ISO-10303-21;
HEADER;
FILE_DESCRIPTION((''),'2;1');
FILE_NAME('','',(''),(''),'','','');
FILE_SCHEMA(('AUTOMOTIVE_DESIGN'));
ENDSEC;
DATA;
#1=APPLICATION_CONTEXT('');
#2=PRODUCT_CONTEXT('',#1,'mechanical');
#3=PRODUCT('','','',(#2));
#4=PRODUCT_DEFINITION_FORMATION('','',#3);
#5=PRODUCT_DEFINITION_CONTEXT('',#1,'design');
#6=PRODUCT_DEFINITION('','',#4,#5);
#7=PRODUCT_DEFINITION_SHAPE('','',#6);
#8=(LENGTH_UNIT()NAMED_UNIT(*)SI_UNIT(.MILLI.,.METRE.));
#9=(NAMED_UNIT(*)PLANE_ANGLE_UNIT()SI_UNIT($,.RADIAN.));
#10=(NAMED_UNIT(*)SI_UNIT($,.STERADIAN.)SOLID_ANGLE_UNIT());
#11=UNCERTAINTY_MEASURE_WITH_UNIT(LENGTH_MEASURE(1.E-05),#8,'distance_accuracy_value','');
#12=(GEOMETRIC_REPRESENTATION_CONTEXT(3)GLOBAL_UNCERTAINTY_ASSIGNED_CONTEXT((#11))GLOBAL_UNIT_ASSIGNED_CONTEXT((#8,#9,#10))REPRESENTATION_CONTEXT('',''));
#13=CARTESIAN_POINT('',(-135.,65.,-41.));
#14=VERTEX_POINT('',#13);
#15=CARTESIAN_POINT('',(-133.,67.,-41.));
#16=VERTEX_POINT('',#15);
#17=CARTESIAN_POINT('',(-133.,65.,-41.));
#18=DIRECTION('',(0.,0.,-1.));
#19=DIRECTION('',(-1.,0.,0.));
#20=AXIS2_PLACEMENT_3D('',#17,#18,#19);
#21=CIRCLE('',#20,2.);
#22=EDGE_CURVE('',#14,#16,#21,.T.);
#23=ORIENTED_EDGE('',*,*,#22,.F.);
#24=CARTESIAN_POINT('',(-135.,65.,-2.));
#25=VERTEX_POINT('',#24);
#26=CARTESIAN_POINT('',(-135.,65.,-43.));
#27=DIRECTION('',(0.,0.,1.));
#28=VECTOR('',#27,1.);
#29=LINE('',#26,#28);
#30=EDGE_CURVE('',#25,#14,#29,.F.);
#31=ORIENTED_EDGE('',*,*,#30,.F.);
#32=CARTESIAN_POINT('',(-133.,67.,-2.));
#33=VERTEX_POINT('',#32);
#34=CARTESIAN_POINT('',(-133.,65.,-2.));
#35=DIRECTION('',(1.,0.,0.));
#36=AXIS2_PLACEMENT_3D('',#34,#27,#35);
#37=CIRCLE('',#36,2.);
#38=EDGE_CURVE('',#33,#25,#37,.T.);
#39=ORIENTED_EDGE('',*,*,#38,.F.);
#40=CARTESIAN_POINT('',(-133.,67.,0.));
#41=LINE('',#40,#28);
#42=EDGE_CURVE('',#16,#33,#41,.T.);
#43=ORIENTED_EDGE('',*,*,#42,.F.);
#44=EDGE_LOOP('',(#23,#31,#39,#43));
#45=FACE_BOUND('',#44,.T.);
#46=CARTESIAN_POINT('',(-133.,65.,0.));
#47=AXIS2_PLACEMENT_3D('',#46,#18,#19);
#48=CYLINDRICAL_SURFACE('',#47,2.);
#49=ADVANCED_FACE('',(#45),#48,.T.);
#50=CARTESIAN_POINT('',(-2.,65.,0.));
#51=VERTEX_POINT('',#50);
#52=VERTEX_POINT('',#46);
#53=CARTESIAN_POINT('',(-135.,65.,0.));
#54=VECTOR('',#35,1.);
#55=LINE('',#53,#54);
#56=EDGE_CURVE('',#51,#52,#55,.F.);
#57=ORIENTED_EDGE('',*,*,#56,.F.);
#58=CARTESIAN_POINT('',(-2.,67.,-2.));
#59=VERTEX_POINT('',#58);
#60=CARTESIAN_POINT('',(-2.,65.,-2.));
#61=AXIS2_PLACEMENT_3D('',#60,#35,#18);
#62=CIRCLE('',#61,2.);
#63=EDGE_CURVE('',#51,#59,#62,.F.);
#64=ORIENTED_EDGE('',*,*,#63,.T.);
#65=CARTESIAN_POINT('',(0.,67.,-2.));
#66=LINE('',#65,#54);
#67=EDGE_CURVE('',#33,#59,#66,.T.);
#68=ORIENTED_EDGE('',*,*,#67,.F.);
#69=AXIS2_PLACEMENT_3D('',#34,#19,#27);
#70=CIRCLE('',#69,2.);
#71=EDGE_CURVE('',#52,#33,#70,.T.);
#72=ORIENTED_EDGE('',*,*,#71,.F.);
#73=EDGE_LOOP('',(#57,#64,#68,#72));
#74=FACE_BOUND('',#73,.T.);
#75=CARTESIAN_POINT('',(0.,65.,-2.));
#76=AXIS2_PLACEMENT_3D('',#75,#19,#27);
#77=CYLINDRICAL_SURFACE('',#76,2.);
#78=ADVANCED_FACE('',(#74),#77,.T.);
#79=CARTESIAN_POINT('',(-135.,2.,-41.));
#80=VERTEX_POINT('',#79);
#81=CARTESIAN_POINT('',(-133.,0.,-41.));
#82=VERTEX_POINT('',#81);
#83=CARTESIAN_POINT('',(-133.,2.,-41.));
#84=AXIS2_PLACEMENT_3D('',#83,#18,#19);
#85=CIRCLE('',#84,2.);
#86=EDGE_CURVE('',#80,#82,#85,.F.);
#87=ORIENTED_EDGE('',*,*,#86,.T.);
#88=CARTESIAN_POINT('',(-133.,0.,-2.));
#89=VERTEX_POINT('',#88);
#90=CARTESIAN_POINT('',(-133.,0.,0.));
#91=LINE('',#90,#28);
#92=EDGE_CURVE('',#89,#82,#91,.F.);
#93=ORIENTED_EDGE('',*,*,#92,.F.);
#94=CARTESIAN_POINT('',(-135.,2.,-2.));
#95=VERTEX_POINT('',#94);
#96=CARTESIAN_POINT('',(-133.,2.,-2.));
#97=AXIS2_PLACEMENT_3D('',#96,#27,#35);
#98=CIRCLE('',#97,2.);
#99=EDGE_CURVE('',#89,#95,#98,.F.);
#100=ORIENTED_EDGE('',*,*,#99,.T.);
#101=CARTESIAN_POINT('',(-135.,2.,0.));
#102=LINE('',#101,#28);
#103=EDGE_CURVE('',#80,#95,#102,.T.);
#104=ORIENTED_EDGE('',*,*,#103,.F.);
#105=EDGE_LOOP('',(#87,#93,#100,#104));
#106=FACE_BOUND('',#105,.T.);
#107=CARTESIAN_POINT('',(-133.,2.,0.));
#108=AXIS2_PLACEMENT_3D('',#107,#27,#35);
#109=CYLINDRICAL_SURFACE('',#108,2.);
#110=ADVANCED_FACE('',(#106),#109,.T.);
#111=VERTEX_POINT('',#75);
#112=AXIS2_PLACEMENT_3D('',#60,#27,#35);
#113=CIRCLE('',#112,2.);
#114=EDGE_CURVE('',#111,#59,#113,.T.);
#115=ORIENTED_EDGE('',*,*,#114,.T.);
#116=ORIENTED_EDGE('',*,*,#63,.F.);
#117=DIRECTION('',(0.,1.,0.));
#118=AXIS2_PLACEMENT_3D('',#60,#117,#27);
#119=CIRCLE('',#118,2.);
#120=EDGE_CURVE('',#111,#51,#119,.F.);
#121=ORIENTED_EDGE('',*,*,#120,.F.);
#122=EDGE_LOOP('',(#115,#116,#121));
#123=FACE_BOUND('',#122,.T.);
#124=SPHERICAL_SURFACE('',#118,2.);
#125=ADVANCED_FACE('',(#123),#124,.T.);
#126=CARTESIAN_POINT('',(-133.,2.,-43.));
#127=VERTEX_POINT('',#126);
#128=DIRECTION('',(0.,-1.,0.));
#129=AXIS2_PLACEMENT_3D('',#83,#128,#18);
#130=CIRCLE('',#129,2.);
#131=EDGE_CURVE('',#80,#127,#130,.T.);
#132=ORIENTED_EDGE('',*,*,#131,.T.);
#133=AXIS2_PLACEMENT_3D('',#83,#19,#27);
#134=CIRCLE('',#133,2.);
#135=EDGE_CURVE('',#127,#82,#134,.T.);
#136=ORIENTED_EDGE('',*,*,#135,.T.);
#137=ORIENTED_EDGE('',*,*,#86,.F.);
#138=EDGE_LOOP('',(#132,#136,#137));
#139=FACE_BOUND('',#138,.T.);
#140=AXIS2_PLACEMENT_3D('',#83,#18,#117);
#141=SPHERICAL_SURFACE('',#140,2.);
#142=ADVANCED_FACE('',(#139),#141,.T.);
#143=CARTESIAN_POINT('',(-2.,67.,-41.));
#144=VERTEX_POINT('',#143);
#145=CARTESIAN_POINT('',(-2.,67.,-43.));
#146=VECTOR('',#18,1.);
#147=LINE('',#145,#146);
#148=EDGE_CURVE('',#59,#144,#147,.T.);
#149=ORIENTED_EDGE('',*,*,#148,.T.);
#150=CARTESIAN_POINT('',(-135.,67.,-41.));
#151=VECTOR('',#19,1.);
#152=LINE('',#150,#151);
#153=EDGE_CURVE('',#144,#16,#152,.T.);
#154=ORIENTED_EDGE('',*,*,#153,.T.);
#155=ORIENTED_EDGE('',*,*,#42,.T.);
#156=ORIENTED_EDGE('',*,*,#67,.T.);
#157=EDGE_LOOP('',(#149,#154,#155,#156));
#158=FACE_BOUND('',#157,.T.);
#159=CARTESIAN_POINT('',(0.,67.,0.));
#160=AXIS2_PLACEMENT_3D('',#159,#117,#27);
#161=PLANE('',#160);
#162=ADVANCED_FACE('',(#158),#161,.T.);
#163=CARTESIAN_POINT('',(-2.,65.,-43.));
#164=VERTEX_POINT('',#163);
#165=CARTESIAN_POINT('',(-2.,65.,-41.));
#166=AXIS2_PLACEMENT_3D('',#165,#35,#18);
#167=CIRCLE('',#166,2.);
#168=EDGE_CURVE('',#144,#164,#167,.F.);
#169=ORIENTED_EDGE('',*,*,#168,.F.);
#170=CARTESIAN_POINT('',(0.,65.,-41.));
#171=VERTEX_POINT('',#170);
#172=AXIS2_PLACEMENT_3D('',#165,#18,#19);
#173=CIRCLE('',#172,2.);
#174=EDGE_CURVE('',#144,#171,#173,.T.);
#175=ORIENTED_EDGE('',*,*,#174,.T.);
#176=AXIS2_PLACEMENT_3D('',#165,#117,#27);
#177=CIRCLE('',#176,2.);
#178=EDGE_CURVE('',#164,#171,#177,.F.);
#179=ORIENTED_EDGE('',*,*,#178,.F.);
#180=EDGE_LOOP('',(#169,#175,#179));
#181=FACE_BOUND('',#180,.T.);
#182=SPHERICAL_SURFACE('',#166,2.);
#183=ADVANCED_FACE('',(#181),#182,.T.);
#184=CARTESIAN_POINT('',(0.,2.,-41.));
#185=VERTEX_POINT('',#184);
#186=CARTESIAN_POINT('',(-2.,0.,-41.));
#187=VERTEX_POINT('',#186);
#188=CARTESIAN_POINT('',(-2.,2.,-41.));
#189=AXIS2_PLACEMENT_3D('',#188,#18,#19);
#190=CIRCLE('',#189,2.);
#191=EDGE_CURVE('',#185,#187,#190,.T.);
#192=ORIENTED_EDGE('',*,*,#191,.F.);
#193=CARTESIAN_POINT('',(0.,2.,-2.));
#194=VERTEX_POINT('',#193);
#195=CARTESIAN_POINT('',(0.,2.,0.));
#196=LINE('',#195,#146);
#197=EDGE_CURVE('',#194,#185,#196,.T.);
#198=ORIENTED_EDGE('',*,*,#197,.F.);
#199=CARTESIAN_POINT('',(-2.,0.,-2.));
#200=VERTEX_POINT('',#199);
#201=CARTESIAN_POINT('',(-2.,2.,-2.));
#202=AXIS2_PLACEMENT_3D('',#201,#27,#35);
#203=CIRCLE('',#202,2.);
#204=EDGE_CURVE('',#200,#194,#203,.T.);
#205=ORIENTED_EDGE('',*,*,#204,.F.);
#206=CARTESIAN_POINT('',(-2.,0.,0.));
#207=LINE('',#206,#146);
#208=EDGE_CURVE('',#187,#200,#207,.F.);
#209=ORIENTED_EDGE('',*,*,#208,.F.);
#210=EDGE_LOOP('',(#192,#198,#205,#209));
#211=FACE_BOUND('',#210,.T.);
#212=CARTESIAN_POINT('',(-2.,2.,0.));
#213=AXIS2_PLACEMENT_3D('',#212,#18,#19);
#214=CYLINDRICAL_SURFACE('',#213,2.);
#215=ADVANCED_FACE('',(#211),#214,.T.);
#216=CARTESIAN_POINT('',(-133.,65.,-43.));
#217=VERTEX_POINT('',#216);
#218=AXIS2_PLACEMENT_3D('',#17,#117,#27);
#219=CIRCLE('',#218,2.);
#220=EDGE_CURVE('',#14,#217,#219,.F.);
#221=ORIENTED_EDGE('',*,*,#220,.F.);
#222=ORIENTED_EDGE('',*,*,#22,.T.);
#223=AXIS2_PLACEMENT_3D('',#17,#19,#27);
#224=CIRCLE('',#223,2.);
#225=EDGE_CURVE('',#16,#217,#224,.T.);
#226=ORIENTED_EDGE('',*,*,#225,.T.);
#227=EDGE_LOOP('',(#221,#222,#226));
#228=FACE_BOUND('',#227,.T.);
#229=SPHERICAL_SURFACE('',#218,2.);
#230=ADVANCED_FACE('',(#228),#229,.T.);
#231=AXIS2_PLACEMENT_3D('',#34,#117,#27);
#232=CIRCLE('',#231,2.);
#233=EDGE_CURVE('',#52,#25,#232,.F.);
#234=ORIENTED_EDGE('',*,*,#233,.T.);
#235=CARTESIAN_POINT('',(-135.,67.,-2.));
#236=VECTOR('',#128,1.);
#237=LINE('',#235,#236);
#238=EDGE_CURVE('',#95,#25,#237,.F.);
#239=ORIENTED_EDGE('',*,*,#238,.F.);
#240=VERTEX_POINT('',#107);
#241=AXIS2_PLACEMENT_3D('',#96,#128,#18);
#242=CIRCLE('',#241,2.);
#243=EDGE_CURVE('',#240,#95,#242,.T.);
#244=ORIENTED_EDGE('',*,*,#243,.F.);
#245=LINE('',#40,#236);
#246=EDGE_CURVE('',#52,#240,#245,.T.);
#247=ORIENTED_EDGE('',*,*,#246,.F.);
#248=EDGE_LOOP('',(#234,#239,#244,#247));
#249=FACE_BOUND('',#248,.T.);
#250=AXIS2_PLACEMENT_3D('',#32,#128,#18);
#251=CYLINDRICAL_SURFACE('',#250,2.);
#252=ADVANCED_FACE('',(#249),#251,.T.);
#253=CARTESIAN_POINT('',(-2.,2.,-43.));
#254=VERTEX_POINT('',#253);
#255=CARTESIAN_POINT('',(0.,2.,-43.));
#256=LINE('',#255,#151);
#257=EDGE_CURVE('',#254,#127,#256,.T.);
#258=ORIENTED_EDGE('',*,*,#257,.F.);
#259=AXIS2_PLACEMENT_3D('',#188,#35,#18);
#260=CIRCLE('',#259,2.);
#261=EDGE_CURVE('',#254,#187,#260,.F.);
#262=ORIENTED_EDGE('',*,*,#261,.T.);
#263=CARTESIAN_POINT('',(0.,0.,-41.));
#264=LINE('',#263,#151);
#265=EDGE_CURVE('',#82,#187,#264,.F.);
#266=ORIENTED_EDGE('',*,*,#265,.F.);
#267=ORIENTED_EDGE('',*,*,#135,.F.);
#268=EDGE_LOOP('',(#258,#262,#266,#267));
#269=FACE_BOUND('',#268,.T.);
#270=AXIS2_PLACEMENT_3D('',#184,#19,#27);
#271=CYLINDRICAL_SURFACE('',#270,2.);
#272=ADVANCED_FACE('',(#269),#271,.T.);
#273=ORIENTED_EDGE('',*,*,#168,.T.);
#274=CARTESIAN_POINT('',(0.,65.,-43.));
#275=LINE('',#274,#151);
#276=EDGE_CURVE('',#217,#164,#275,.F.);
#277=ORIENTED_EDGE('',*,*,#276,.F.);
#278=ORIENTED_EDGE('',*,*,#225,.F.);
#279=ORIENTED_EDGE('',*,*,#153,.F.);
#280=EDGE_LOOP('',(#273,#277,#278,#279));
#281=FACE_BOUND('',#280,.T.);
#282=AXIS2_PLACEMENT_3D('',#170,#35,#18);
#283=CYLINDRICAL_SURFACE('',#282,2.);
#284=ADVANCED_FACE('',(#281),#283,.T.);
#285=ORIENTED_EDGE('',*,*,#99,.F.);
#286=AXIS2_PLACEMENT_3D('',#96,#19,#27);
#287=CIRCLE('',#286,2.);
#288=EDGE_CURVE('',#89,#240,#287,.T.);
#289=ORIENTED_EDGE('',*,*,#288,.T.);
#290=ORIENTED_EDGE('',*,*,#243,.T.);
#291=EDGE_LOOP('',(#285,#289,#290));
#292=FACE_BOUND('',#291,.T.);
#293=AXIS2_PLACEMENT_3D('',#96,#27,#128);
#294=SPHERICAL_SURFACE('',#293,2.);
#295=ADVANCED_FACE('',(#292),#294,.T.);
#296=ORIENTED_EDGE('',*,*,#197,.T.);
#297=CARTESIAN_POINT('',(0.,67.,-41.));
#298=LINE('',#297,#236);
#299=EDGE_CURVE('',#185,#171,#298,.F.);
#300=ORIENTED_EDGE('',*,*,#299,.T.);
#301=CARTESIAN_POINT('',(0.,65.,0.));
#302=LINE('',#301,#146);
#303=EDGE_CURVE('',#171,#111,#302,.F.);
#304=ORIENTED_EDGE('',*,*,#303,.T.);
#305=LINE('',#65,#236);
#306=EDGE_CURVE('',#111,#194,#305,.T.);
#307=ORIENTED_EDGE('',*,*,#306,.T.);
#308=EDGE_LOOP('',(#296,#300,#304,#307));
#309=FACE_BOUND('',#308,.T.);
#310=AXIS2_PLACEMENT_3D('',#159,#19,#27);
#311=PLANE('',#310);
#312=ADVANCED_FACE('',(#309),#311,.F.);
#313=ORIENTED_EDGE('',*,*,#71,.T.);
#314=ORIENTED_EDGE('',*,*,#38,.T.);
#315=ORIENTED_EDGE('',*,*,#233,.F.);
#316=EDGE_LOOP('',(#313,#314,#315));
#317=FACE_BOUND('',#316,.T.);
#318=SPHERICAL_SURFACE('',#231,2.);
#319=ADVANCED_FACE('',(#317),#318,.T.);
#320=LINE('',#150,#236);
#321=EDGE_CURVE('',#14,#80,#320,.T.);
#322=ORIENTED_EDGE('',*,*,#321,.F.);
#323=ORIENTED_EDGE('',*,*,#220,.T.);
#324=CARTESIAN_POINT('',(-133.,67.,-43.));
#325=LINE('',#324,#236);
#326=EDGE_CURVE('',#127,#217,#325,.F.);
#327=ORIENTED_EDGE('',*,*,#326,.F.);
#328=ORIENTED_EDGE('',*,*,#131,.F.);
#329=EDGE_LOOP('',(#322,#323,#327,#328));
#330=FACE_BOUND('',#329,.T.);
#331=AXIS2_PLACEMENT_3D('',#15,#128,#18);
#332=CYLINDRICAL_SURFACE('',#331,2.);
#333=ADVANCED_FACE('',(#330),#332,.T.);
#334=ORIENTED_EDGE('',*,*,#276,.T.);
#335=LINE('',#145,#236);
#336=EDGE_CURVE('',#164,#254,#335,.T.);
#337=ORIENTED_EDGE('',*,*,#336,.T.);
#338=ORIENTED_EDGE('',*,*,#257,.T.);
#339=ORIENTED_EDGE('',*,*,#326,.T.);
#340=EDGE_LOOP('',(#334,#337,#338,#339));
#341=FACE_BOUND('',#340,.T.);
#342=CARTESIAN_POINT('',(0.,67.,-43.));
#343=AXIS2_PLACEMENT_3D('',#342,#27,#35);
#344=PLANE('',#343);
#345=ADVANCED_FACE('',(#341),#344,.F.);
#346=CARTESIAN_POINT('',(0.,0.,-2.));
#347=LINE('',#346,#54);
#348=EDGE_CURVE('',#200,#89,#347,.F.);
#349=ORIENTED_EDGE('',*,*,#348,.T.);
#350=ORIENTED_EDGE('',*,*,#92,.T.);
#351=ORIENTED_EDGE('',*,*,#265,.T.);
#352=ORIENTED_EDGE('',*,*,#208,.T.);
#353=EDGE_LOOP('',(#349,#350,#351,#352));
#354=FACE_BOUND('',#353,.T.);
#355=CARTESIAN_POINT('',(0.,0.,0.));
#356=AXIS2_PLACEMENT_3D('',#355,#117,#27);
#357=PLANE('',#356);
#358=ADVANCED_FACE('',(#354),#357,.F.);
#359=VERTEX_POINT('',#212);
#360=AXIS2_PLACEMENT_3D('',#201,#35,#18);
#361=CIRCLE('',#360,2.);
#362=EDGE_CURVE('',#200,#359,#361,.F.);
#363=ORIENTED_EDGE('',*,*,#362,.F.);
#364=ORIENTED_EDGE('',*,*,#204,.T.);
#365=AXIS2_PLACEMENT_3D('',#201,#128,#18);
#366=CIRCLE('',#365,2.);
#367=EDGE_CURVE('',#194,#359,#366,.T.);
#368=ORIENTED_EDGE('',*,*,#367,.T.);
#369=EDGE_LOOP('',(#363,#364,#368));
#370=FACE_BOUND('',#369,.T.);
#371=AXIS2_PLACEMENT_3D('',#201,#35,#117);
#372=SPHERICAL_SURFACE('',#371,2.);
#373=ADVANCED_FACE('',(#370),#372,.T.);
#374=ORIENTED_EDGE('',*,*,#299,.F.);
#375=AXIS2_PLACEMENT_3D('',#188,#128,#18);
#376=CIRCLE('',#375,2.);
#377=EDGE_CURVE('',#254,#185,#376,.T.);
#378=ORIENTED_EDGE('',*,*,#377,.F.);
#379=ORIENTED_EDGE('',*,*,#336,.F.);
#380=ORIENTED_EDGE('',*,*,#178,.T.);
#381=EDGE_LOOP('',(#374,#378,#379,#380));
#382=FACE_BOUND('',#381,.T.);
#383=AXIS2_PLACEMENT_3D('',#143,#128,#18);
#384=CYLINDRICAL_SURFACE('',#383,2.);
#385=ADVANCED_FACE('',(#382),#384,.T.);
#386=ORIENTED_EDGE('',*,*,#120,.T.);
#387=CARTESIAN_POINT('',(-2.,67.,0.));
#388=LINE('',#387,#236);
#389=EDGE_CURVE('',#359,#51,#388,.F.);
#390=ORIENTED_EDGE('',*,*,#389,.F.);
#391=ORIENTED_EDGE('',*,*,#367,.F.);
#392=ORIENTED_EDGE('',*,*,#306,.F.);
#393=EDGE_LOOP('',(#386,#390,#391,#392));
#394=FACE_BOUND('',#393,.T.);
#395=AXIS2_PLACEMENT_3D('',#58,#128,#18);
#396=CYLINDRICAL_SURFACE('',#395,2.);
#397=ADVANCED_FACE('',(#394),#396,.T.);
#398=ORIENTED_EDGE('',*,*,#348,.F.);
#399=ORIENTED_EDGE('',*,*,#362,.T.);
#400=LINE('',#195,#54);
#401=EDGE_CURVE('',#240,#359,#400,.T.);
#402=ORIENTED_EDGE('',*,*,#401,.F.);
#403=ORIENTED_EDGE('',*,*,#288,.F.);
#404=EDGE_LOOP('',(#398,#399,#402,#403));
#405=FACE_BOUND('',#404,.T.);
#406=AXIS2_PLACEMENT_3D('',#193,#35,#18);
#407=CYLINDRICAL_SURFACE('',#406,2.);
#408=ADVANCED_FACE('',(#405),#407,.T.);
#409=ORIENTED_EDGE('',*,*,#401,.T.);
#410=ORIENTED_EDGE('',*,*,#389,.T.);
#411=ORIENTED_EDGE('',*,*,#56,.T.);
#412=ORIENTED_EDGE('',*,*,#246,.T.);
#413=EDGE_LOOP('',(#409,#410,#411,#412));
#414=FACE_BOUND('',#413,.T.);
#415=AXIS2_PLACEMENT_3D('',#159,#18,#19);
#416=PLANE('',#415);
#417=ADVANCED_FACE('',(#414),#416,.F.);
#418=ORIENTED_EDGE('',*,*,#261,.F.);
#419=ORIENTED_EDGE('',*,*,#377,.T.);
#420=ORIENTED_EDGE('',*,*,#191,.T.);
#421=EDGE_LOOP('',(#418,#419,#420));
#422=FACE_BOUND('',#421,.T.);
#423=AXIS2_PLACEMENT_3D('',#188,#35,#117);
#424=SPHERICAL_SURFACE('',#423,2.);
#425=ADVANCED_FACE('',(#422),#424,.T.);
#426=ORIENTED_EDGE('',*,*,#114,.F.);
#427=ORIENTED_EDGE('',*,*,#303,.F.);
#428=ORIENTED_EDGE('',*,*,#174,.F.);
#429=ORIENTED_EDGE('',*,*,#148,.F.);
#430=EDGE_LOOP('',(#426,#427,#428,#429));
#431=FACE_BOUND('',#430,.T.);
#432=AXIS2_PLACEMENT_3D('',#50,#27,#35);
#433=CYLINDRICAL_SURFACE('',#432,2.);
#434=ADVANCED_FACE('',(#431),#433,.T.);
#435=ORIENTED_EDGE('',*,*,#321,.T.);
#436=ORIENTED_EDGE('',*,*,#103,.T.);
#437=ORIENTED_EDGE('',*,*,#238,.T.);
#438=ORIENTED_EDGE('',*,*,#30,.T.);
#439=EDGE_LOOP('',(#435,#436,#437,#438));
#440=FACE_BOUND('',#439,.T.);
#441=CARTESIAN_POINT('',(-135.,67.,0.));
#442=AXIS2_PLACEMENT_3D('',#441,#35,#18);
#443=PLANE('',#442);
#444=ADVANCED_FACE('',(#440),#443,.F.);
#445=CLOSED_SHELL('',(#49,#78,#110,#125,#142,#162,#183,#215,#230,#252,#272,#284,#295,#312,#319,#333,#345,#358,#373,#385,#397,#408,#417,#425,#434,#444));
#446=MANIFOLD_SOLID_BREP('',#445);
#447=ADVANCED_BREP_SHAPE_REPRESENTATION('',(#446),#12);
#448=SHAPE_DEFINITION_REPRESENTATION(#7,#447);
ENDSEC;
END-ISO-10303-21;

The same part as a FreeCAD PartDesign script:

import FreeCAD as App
import Part
import Sketcher
from FreeCAD import Vector
Q = App.Units.Quantity


def add_polygon(sketch, points):
    """Adds a closed chain of lines whose ends are joined by coincident constraints."""
    first, n = sketch.GeometryCount, len(points)
    for a, b in zip(points, points[1:] + points[:1]):
        sketch.addGeometry(Part.LineSegment(App.Vector(*a, 0), App.Vector(*b, 0)), False)
    for i in range(n):
        sketch.addConstraint(Sketcher.Constraint("Coincident", first + i, 2, first + (i + 1) % n, 1))

doc = App.newDocument("Part")
body = doc.addObject("PartDesign::Body", "Body")

# Sketch on XZ plane
sketch1 = body.newObject("Sketcher::SketchObject", "Sketch")
sketch1.AttachmentSupport = (doc.getObject("XZ_Plane"), [""])
sketch1.MapMode = "FlatFace"
add_polygon(sketch1, [(-135, -43), (-135, 0), (0, 0), (0, -43)])  # lines 0-3
sketch1.addConstraint([
    Sketcher.Constraint("Vertical", 0),
    Sketcher.Constraint("Horizontal", 1),
    Sketcher.Constraint("Vertical", 2),
    Sketcher.Constraint("Horizontal", 3),
    Sketcher.Constraint("Coincident", 1, 2, -1, 1),
    Sketcher.Constraint("DistanceX", 1, 1, 1, 2, Q("135 mm")),
    Sketcher.Constraint("DistanceY", 0, 1, 0, 2, Q("43 mm")),
])
pad1 = body.newObject("PartDesign::Pad", "Pad")
pad1.Profile = sketch1
pad1.Length = 67
pad1.Reversed = True
doc.recompute()

fillet = body.newObject("PartDesign::Fillet", "Fillet")
fillet.Base = (pad1, ["Edge1"])
fillet.UseAllEdges = True
fillet.Radius = 2

doc.recompute()
